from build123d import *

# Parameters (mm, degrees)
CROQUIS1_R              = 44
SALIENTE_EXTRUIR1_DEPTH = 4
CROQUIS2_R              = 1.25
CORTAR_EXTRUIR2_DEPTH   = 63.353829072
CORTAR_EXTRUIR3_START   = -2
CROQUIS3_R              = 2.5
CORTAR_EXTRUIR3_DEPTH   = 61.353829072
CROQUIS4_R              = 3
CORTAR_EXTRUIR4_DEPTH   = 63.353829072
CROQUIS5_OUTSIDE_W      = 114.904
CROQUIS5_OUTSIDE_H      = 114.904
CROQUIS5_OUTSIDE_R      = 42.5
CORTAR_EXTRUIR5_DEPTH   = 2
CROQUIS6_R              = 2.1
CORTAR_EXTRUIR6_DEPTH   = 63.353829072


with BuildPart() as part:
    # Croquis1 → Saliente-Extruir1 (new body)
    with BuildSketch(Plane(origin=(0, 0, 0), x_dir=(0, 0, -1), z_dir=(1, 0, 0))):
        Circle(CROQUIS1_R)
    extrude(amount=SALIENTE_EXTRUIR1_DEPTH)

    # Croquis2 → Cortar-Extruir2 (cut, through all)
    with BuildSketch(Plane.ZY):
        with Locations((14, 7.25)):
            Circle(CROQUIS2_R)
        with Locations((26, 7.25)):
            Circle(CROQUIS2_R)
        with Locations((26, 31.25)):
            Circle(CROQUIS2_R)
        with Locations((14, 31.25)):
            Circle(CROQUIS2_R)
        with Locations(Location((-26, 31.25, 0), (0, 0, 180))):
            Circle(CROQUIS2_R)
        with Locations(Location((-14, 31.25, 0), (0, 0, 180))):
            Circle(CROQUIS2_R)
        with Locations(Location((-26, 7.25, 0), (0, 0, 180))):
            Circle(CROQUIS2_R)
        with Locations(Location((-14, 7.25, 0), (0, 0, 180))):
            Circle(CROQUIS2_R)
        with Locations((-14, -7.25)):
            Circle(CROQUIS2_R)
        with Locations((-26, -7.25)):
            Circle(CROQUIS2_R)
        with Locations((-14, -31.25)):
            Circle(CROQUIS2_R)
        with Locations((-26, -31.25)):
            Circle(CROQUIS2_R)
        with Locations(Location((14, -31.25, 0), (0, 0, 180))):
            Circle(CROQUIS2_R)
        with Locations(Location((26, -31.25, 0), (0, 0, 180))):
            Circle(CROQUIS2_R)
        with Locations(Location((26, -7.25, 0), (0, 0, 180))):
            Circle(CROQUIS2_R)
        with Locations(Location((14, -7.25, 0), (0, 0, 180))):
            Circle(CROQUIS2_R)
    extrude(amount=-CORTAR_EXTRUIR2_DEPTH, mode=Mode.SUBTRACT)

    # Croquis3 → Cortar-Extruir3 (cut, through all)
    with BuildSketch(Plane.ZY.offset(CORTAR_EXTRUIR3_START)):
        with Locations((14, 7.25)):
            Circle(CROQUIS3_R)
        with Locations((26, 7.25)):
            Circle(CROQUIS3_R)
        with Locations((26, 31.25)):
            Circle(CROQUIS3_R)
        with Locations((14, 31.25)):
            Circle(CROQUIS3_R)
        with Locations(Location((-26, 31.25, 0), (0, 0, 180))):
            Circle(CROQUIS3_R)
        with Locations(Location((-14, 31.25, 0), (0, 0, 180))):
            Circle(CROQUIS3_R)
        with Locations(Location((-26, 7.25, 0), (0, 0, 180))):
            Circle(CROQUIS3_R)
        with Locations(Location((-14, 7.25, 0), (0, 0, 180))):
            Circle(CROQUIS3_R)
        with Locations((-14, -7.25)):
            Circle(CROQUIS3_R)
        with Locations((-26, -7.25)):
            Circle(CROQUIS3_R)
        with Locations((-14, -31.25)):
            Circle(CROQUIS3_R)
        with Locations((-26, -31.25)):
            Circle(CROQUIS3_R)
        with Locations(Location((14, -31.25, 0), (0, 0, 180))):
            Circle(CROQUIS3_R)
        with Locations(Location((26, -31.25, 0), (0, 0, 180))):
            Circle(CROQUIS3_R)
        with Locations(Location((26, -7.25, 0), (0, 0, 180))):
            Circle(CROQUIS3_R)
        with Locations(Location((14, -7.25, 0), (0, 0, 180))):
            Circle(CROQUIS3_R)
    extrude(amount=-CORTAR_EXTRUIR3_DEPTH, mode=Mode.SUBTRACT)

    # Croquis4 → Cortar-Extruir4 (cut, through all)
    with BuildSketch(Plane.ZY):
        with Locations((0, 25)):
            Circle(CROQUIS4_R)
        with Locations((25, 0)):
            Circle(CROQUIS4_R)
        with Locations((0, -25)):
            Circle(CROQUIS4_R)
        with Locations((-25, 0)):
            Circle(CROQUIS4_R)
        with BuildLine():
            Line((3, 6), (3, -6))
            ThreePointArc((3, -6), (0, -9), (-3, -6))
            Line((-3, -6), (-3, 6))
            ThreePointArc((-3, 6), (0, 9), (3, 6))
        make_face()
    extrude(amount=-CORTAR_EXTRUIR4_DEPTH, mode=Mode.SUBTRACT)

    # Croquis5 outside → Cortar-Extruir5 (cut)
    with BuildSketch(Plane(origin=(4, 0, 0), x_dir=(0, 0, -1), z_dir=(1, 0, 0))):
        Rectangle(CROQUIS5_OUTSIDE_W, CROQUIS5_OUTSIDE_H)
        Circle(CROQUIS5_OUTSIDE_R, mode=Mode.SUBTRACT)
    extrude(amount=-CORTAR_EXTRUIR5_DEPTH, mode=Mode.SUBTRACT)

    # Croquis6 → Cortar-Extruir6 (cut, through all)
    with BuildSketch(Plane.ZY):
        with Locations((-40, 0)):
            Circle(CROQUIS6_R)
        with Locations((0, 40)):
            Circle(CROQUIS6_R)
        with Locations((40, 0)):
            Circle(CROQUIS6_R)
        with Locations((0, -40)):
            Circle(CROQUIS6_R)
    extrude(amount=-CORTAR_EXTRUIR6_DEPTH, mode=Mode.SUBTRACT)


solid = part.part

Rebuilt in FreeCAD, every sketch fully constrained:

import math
import FreeCAD as App
import Part
import Sketcher


def add_polygon(sketch, points):
    """Adds a closed chain of lines whose ends are joined by coincident constraints."""
    first, n = sketch.GeometryCount, len(points)
    for a, b in zip(points, points[1:] + points[:1]):
        sketch.addGeometry(Part.LineSegment(App.Vector(*a, 0), App.Vector(*b, 0)), False)
    for i in range(n):
        sketch.addConstraint(Sketcher.Constraint("Coincident", first + i, 2, first + (i + 1) % n, 1))

doc = App.newDocument("Part")
body = doc.addObject("PartDesign::Body", "Body")

# Sketch on YZ plane
sketch1 = body.newObject("Sketcher::SketchObject", "Sketch")
sketch1.AttachmentSupport = (doc.getObject("YZ_Plane"), [""])
sketch1.MapMode = "FlatFace"
sketch1.addGeometry(Part.Circle(App.Vector(0, 0, 0), App.Vector(0, 0, 1), 44), False)
sketch1.addConstraint([
    Sketcher.Constraint("Coincident", 0, 3, -1, 1),
    Sketcher.Constraint("Diameter", 0, 88.0),
])
pad1 = body.newObject("PartDesign::Pad", "Pad")
pad1.Profile = sketch1
pad1.Length = 4

# Sketch on YZ plane
sketch2 = body.newObject("Sketcher::SketchObject", "Sketch001")
sketch2.AttachmentSupport = (doc.getObject("YZ_Plane"), [""])
sketch2.MapMode = "FlatFace"
sketch2.addGeometry([
    Part.Circle(App.Vector(7.2, 14, 0), App.Vector(0, 0, 1), 1.2),  # 0
    Part.Circle(App.Vector(7.2, 26, 0), App.Vector(0, 0, 1), 1.2),  # 1
    Part.Circle(App.Vector(31.2, 26, 0), App.Vector(0, 0, 1), 1.2),  # 2
    Part.Circle(App.Vector(31.2, 14, 0), App.Vector(0, 0, 1), 1.2),  # 3
    Part.Circle(App.Vector(31.2, -26, 0), App.Vector(0, 0, 1), 1.2),  # 4
    Part.Circle(App.Vector(31.2, -14, 0), App.Vector(0, 0, 1), 1.2),  # 5
    Part.Circle(App.Vector(7.2, -26, 0), App.Vector(0, 0, 1), 1.2),  # 6
    Part.Circle(App.Vector(7.2, -14, 0), App.Vector(0, 0, 1), 1.2),  # 7
    Part.Circle(App.Vector(-7.2, -14, 0), App.Vector(0, 0, 1), 1.2),  # 8
    Part.Circle(App.Vector(-7.2, -26, 0), App.Vector(0, 0, 1), 1.2),  # 9
    Part.Circle(App.Vector(-31.2, -14, 0), App.Vector(0, 0, 1), 1.2),  # 10
    Part.Circle(App.Vector(-31.2, -26, 0), App.Vector(0, 0, 1), 1.2),  # 11
    Part.Circle(App.Vector(-31.2, 14, 0), App.Vector(0, 0, 1), 1.2),  # 12
    Part.Circle(App.Vector(-31.2, 26, 0), App.Vector(0, 0, 1), 1.2),  # 13
    Part.Circle(App.Vector(-7.2, 26, 0), App.Vector(0, 0, 1), 1.2),  # 14
    Part.Circle(App.Vector(-7.2, 14, 0), App.Vector(0, 0, 1), 1.2),  # 15
], False)
sketch2.addConstraint([
    Sketcher.Constraint("Equal", 0, 1),
    Sketcher.Constraint("Equal", 1, 2),
    Sketcher.Constraint("Equal", 2, 3),
    Sketcher.Constraint("Equal", 3, 4),
    Sketcher.Constraint("Equal", 4, 5),
    Sketcher.Constraint("Equal", 5, 6),
    Sketcher.Constraint("Equal", 6, 7),
    Sketcher.Constraint("Equal", 7, 8),
    Sketcher.Constraint("Equal", 8, 9),
    Sketcher.Constraint("Equal", 9, 10),
    Sketcher.Constraint("Equal", 10, 11),
    Sketcher.Constraint("Equal", 11, 12),
    Sketcher.Constraint("Equal", 12, 13),
    Sketcher.Constraint("Equal", 13, 14),
    Sketcher.Constraint("Equal", 14, 15),
    Sketcher.Constraint("Symmetric", 0, 3, 8, 3, -1, 1),
    Sketcher.Constraint("Symmetric", 1, 3, 9, 3, -1, 1),
    Sketcher.Constraint("Symmetric", 3, 3, 10, 3, -1, 1),
    Sketcher.Constraint("Symmetric", 2, 3, 11, 3, -1, 1),
    Sketcher.Constraint("Symmetric", 5, 3, 12, 3, -1, 1),
    Sketcher.Constraint("Symmetric", 4, 3, 13, 3, -1, 1),
    Sketcher.Constraint("Symmetric", 6, 3, 14, 3, -1, 1),
    Sketcher.Constraint("Symmetric", 7, 3, 15, 3, -1, 1),
    Sketcher.Constraint("Symmetric", 7, 3, 8, 3, -2),
    Sketcher.Constraint("Symmetric", 6, 3, 9, 3, -2),
    Sketcher.Constraint("Symmetric", 5, 3, 10, 3, -2),
    Sketcher.Constraint("Symmetric", 4, 3, 11, 3, -2),
    Sketcher.Constraint("Horizontal", 1, 3, 2, 3),
    Sketcher.Constraint("Horizontal", 0, 3, 3, 3),
    Sketcher.Constraint("Vertical", 0, 3, 1, 3),
    Sketcher.Constraint("Vertical", 2, 3, 3, 3),
    Sketcher.Constraint("Diameter", 0, 2.5),
    Sketcher.Constraint("DistanceY", -1, 1, 0, 3, 14.0),
    Sketcher.Constraint("DistanceY", -1, 1, 1, 3, 26.0),
    Sketcher.Constraint("DistanceX", 1, 3, 2, 3, 24.0),
    Sketcher.Constraint("DistanceX", 8, 3, 7, 3, 14.5),
])
pocket1 = body.newObject("PartDesign::Pocket", "Pocket")
pocket1.Profile = sketch2
pocket1.Type = "ThroughAll"
pocket1.Reversed = True

# Sketch on YZ plane
sketch3 = body.newObject("Sketcher::SketchObject", "Sketch002")
sketch3.AttachmentSupport = (doc.getObject("YZ_Plane"), [""])
sketch3.MapMode = "FlatFace"
sketch3.AttachmentOffset = App.Placement(App.Vector(0, 0, 2), App.Rotation())
sketch3.addGeometry([
    Part.Circle(App.Vector(7.2, 14, 0), App.Vector(0, 0, 1), 2.5),  # 0
    Part.Circle(App.Vector(7.2, 26, 0), App.Vector(0, 0, 1), 2.5),  # 1
    Part.Circle(App.Vector(31.2, 26, 0), App.Vector(0, 0, 1), 2.5),  # 2
    Part.Circle(App.Vector(31.2, 14, 0), App.Vector(0, 0, 1), 2.5),  # 3
    Part.Circle(App.Vector(31.2, -26, 0), App.Vector(0, 0, 1), 2.5),  # 4
    Part.Circle(App.Vector(31.2, -14, 0), App.Vector(0, 0, 1), 2.5),  # 5
    Part.Circle(App.Vector(7.2, -26, 0), App.Vector(0, 0, 1), 2.5),  # 6
    Part.Circle(App.Vector(7.2, -14, 0), App.Vector(0, 0, 1), 2.5),  # 7
    Part.Circle(App.Vector(-7.2, -14, 0), App.Vector(0, 0, 1), 2.5),  # 8
    Part.Circle(App.Vector(-7.2, -26, 0), App.Vector(0, 0, 1), 2.5),  # 9
    Part.Circle(App.Vector(-31.2, -14, 0), App.Vector(0, 0, 1), 2.5),  # 10
    Part.Circle(App.Vector(-31.2, -26, 0), App.Vector(0, 0, 1), 2.5),  # 11
    Part.Circle(App.Vector(-31.2, 14, 0), App.Vector(0, 0, 1), 2.5),  # 12
    Part.Circle(App.Vector(-31.2, 26, 0), App.Vector(0, 0, 1), 2.5),  # 13
    Part.Circle(App.Vector(-7.2, 26, 0), App.Vector(0, 0, 1), 2.5),  # 14
    Part.Circle(App.Vector(-7.2, 14, 0), App.Vector(0, 0, 1), 2.5),  # 15
], False)
sketch3.addConstraint([
    Sketcher.Constraint("Equal", 0, 1),
    Sketcher.Constraint("Equal", 1, 2),
    Sketcher.Constraint("Equal", 2, 3),
    Sketcher.Constraint("Equal", 3, 4),
    Sketcher.Constraint("Equal", 4, 5),
    Sketcher.Constraint("Equal", 5, 6),
    Sketcher.Constraint("Equal", 6, 7),
    Sketcher.Constraint("Equal", 7, 8),
    Sketcher.Constraint("Equal", 8, 9),
    Sketcher.Constraint("Equal", 9, 10),
    Sketcher.Constraint("Equal", 10, 11),
    Sketcher.Constraint("Equal", 11, 12),
    Sketcher.Constraint("Equal", 12, 13),
    Sketcher.Constraint("Equal", 13, 14),
    Sketcher.Constraint("Equal", 14, 15),
    Sketcher.Constraint("Symmetric", 0, 3, 8, 3, -1, 1),
    Sketcher.Constraint("Symmetric", 1, 3, 9, 3, -1, 1),
    Sketcher.Constraint("Symmetric", 3, 3, 10, 3, -1, 1),
    Sketcher.Constraint("Symmetric", 2, 3, 11, 3, -1, 1),
    Sketcher.Constraint("Symmetric", 5, 3, 12, 3, -1, 1),
    Sketcher.Constraint("Symmetric", 4, 3, 13, 3, -1, 1),
    Sketcher.Constraint("Symmetric", 6, 3, 14, 3, -1, 1),
    Sketcher.Constraint("Symmetric", 7, 3, 15, 3, -1, 1),
    Sketcher.Constraint("Symmetric", 7, 3, 8, 3, -2),
    Sketcher.Constraint("Symmetric", 6, 3, 9, 3, -2),
    Sketcher.Constraint("Symmetric", 5, 3, 10, 3, -2),
    Sketcher.Constraint("Symmetric", 4, 3, 11, 3, -2),
    Sketcher.Constraint("Horizontal", 1, 3, 2, 3),
    Sketcher.Constraint("Horizontal", 0, 3, 3, 3),
    Sketcher.Constraint("Vertical", 0, 3, 1, 3),
    Sketcher.Constraint("Vertical", 2, 3, 3, 3),
    Sketcher.Constraint("Diameter", 0, 5.0),
    Sketcher.Constraint("DistanceY", -1, 1, 0, 3, 14.0),
    Sketcher.Constraint("DistanceY", -1, 1, 1, 3, 26.0),
    Sketcher.Constraint("DistanceX", 1, 3, 2, 3, 24.0),
    Sketcher.Constraint("DistanceX", 8, 3, 7, 3, 14.5),
])
pocket2 = body.newObject("PartDesign::Pocket", "Pocket001")
pocket2.Profile = sketch3
pocket2.Type = "ThroughAll"
pocket2.Reversed = True

# Sketch on YZ plane
sketch4 = body.newObject("Sketcher::SketchObject", "Sketch003")
sketch4.AttachmentSupport = (doc.getObject("YZ_Plane"), [""])
sketch4.MapMode = "FlatFace"
sketch4.addGeometry([
    Part.Circle(App.Vector(25, 0, 0), App.Vector(0, 0, 1), 3),  # 0
    Part.Circle(App.Vector(0, 25, 0), App.Vector(0, 0, 1), 3),  # 1
    Part.Circle(App.Vector(-25, 0, 0), App.Vector(0, 0, 1), 3),  # 2
    Part.Circle(App.Vector(0, -25, 0), App.Vector(0, 0, 1), 3),  # 3
    Part.LineSegment(App.Vector(-6, 3, 0), App.Vector(6, 3, 0)),  # 4
    Part.ArcOfCircle(Part.Circle(App.Vector(6, 0, 0), App.Vector(0, 0, 1), 3), math.radians(-90), math.radians(90)),  # 5
    Part.LineSegment(App.Vector(6, -3, 0), App.Vector(-6, -3, 0)),  # 6
    Part.ArcOfCircle(Part.Circle(App.Vector(-6, 0, 0), App.Vector(0, 0, 1), 3), math.radians(90), math.radians(270)),  # 7
], False)
sketch4.addConstraint([
    Sketcher.Constraint("Tangent", 4, 2, 5, 2),
    Sketcher.Constraint("Tangent", 5, 1, 6, 1),
    Sketcher.Constraint("Tangent", 6, 2, 7, 2),
    Sketcher.Constraint("Tangent", 7, 1, 4, 1),
    Sketcher.Constraint("Horizontal", 4),
    Sketcher.Constraint("Horizontal", 6),
    Sketcher.Constraint("Equal", 0, 1),
    Sketcher.Constraint("Equal", 1, 2),
    Sketcher.Constraint("Equal", 2, 3),
    Sketcher.Constraint("Equal", 3, 5),
    Sketcher.Constraint("Symmetric", 0, 3, 2, 3, -1, 1),
    Sketcher.Constraint("Symmetric", 1, 3, 3, 3, -1, 1),
    Sketcher.Constraint("Symmetric", 5, 3, 7, 3, -1, 1),
    Sketcher.Constraint("PointOnObject", 0, 3, -1),
    Sketcher.Constraint("PointOnObject", 1, 3, -2),
    Sketcher.Constraint("Diameter", 0, 6.0),
    Sketcher.Constraint("DistanceX", 4, 1, 4, 2, 12.0),
    Sketcher.Constraint("DistanceX", -1, 1, 0, 3, 25.0),
    Sketcher.Constraint("DistanceY", -1, 1, 1, 3, 25.0),
])
pocket3 = body.newObject("PartDesign::Pocket", "Pocket002")
pocket3.Profile = sketch4
pocket3.Type = "ThroughAll"
pocket3.Reversed = True

# Sketch on YZ plane
sketch5 = body.newObject("Sketcher::SketchObject", "Sketch004")
sketch5.AttachmentSupport = (doc.getObject("YZ_Plane"), [""])
sketch5.MapMode = "FlatFace"
sketch5.AttachmentOffset = App.Placement(App.Vector(0, 0, 4), App.Rotation())
add_polygon(sketch5, [(57, 57), (-57, 57), (-57, -57), (57, -57)])  # lines 0-3
sketch5.addGeometry(Part.Circle(App.Vector(0, 0, 0), App.Vector(0, 0, 1), 42), False)  # 4
sketch5.addConstraint([
    Sketcher.Constraint("Horizontal", 0),
    Sketcher.Constraint("Vertical", 1),
    Sketcher.Constraint("Horizontal", 2),
    Sketcher.Constraint("Vertical", 3),
    Sketcher.Constraint("Coincident", 4, 3, -1, 1),
    Sketcher.Constraint("Symmetric", 0, 2, 2, 2, -1, 1),
    Sketcher.Constraint("Equal", 2, 1),
    Sketcher.Constraint("Diameter", 4, 85.0),
    Sketcher.Constraint("DistanceX", 0, 2, 0, 1, 114.904),
])
pocket4 = body.newObject("PartDesign::Pocket", "Pocket003")
pocket4.Profile = sketch5
pocket4.Length = 2

# Sketch on YZ plane
sketch6 = body.newObject("Sketcher::SketchObject", "Sketch005")
sketch6.AttachmentSupport = (doc.getObject("YZ_Plane"), [""])
sketch6.MapMode = "FlatFace"
sketch6.addGeometry([
    Part.Circle(App.Vector(0, -40, 0), App.Vector(0, 0, 1), 2.1),
    Part.Circle(App.Vector(40, 0, 0), App.Vector(0, 0, 1), 2.1),
    Part.Circle(App.Vector(0, 40, 0), App.Vector(0, 0, 1), 2.1),
    Part.Circle(App.Vector(-40, 0, 0), App.Vector(0, 0, 1), 2.1),
], False)
sketch6.addConstraint([
    Sketcher.Constraint("Equal", 0, 1),
    Sketcher.Constraint("Equal", 1, 2),
    Sketcher.Constraint("Equal", 2, 3),
    Sketcher.Constraint("Symmetric", 0, 3, 2, 3, -1, 1),
    Sketcher.Constraint("Symmetric", 1, 3, 3, 3, -1, 1),
    Sketcher.Constraint("PointOnObject", 0, 3, -2),
    Sketcher.Constraint("PointOnObject", 1, 3, -1),
    Sketcher.Constraint("Diameter", 0, 4.2),
    Sketcher.Constraint("DistanceY", 0, 3, -1, 1, 40.0),
    Sketcher.Constraint("DistanceX", -1, 1, 1, 3, 40.0),
])
pocket5 = body.newObject("PartDesign::Pocket", "Pocket004")
pocket5.Profile = sketch6
pocket5.Type = "ThroughAll"
pocket5.Reversed = True

doc.recompute()
